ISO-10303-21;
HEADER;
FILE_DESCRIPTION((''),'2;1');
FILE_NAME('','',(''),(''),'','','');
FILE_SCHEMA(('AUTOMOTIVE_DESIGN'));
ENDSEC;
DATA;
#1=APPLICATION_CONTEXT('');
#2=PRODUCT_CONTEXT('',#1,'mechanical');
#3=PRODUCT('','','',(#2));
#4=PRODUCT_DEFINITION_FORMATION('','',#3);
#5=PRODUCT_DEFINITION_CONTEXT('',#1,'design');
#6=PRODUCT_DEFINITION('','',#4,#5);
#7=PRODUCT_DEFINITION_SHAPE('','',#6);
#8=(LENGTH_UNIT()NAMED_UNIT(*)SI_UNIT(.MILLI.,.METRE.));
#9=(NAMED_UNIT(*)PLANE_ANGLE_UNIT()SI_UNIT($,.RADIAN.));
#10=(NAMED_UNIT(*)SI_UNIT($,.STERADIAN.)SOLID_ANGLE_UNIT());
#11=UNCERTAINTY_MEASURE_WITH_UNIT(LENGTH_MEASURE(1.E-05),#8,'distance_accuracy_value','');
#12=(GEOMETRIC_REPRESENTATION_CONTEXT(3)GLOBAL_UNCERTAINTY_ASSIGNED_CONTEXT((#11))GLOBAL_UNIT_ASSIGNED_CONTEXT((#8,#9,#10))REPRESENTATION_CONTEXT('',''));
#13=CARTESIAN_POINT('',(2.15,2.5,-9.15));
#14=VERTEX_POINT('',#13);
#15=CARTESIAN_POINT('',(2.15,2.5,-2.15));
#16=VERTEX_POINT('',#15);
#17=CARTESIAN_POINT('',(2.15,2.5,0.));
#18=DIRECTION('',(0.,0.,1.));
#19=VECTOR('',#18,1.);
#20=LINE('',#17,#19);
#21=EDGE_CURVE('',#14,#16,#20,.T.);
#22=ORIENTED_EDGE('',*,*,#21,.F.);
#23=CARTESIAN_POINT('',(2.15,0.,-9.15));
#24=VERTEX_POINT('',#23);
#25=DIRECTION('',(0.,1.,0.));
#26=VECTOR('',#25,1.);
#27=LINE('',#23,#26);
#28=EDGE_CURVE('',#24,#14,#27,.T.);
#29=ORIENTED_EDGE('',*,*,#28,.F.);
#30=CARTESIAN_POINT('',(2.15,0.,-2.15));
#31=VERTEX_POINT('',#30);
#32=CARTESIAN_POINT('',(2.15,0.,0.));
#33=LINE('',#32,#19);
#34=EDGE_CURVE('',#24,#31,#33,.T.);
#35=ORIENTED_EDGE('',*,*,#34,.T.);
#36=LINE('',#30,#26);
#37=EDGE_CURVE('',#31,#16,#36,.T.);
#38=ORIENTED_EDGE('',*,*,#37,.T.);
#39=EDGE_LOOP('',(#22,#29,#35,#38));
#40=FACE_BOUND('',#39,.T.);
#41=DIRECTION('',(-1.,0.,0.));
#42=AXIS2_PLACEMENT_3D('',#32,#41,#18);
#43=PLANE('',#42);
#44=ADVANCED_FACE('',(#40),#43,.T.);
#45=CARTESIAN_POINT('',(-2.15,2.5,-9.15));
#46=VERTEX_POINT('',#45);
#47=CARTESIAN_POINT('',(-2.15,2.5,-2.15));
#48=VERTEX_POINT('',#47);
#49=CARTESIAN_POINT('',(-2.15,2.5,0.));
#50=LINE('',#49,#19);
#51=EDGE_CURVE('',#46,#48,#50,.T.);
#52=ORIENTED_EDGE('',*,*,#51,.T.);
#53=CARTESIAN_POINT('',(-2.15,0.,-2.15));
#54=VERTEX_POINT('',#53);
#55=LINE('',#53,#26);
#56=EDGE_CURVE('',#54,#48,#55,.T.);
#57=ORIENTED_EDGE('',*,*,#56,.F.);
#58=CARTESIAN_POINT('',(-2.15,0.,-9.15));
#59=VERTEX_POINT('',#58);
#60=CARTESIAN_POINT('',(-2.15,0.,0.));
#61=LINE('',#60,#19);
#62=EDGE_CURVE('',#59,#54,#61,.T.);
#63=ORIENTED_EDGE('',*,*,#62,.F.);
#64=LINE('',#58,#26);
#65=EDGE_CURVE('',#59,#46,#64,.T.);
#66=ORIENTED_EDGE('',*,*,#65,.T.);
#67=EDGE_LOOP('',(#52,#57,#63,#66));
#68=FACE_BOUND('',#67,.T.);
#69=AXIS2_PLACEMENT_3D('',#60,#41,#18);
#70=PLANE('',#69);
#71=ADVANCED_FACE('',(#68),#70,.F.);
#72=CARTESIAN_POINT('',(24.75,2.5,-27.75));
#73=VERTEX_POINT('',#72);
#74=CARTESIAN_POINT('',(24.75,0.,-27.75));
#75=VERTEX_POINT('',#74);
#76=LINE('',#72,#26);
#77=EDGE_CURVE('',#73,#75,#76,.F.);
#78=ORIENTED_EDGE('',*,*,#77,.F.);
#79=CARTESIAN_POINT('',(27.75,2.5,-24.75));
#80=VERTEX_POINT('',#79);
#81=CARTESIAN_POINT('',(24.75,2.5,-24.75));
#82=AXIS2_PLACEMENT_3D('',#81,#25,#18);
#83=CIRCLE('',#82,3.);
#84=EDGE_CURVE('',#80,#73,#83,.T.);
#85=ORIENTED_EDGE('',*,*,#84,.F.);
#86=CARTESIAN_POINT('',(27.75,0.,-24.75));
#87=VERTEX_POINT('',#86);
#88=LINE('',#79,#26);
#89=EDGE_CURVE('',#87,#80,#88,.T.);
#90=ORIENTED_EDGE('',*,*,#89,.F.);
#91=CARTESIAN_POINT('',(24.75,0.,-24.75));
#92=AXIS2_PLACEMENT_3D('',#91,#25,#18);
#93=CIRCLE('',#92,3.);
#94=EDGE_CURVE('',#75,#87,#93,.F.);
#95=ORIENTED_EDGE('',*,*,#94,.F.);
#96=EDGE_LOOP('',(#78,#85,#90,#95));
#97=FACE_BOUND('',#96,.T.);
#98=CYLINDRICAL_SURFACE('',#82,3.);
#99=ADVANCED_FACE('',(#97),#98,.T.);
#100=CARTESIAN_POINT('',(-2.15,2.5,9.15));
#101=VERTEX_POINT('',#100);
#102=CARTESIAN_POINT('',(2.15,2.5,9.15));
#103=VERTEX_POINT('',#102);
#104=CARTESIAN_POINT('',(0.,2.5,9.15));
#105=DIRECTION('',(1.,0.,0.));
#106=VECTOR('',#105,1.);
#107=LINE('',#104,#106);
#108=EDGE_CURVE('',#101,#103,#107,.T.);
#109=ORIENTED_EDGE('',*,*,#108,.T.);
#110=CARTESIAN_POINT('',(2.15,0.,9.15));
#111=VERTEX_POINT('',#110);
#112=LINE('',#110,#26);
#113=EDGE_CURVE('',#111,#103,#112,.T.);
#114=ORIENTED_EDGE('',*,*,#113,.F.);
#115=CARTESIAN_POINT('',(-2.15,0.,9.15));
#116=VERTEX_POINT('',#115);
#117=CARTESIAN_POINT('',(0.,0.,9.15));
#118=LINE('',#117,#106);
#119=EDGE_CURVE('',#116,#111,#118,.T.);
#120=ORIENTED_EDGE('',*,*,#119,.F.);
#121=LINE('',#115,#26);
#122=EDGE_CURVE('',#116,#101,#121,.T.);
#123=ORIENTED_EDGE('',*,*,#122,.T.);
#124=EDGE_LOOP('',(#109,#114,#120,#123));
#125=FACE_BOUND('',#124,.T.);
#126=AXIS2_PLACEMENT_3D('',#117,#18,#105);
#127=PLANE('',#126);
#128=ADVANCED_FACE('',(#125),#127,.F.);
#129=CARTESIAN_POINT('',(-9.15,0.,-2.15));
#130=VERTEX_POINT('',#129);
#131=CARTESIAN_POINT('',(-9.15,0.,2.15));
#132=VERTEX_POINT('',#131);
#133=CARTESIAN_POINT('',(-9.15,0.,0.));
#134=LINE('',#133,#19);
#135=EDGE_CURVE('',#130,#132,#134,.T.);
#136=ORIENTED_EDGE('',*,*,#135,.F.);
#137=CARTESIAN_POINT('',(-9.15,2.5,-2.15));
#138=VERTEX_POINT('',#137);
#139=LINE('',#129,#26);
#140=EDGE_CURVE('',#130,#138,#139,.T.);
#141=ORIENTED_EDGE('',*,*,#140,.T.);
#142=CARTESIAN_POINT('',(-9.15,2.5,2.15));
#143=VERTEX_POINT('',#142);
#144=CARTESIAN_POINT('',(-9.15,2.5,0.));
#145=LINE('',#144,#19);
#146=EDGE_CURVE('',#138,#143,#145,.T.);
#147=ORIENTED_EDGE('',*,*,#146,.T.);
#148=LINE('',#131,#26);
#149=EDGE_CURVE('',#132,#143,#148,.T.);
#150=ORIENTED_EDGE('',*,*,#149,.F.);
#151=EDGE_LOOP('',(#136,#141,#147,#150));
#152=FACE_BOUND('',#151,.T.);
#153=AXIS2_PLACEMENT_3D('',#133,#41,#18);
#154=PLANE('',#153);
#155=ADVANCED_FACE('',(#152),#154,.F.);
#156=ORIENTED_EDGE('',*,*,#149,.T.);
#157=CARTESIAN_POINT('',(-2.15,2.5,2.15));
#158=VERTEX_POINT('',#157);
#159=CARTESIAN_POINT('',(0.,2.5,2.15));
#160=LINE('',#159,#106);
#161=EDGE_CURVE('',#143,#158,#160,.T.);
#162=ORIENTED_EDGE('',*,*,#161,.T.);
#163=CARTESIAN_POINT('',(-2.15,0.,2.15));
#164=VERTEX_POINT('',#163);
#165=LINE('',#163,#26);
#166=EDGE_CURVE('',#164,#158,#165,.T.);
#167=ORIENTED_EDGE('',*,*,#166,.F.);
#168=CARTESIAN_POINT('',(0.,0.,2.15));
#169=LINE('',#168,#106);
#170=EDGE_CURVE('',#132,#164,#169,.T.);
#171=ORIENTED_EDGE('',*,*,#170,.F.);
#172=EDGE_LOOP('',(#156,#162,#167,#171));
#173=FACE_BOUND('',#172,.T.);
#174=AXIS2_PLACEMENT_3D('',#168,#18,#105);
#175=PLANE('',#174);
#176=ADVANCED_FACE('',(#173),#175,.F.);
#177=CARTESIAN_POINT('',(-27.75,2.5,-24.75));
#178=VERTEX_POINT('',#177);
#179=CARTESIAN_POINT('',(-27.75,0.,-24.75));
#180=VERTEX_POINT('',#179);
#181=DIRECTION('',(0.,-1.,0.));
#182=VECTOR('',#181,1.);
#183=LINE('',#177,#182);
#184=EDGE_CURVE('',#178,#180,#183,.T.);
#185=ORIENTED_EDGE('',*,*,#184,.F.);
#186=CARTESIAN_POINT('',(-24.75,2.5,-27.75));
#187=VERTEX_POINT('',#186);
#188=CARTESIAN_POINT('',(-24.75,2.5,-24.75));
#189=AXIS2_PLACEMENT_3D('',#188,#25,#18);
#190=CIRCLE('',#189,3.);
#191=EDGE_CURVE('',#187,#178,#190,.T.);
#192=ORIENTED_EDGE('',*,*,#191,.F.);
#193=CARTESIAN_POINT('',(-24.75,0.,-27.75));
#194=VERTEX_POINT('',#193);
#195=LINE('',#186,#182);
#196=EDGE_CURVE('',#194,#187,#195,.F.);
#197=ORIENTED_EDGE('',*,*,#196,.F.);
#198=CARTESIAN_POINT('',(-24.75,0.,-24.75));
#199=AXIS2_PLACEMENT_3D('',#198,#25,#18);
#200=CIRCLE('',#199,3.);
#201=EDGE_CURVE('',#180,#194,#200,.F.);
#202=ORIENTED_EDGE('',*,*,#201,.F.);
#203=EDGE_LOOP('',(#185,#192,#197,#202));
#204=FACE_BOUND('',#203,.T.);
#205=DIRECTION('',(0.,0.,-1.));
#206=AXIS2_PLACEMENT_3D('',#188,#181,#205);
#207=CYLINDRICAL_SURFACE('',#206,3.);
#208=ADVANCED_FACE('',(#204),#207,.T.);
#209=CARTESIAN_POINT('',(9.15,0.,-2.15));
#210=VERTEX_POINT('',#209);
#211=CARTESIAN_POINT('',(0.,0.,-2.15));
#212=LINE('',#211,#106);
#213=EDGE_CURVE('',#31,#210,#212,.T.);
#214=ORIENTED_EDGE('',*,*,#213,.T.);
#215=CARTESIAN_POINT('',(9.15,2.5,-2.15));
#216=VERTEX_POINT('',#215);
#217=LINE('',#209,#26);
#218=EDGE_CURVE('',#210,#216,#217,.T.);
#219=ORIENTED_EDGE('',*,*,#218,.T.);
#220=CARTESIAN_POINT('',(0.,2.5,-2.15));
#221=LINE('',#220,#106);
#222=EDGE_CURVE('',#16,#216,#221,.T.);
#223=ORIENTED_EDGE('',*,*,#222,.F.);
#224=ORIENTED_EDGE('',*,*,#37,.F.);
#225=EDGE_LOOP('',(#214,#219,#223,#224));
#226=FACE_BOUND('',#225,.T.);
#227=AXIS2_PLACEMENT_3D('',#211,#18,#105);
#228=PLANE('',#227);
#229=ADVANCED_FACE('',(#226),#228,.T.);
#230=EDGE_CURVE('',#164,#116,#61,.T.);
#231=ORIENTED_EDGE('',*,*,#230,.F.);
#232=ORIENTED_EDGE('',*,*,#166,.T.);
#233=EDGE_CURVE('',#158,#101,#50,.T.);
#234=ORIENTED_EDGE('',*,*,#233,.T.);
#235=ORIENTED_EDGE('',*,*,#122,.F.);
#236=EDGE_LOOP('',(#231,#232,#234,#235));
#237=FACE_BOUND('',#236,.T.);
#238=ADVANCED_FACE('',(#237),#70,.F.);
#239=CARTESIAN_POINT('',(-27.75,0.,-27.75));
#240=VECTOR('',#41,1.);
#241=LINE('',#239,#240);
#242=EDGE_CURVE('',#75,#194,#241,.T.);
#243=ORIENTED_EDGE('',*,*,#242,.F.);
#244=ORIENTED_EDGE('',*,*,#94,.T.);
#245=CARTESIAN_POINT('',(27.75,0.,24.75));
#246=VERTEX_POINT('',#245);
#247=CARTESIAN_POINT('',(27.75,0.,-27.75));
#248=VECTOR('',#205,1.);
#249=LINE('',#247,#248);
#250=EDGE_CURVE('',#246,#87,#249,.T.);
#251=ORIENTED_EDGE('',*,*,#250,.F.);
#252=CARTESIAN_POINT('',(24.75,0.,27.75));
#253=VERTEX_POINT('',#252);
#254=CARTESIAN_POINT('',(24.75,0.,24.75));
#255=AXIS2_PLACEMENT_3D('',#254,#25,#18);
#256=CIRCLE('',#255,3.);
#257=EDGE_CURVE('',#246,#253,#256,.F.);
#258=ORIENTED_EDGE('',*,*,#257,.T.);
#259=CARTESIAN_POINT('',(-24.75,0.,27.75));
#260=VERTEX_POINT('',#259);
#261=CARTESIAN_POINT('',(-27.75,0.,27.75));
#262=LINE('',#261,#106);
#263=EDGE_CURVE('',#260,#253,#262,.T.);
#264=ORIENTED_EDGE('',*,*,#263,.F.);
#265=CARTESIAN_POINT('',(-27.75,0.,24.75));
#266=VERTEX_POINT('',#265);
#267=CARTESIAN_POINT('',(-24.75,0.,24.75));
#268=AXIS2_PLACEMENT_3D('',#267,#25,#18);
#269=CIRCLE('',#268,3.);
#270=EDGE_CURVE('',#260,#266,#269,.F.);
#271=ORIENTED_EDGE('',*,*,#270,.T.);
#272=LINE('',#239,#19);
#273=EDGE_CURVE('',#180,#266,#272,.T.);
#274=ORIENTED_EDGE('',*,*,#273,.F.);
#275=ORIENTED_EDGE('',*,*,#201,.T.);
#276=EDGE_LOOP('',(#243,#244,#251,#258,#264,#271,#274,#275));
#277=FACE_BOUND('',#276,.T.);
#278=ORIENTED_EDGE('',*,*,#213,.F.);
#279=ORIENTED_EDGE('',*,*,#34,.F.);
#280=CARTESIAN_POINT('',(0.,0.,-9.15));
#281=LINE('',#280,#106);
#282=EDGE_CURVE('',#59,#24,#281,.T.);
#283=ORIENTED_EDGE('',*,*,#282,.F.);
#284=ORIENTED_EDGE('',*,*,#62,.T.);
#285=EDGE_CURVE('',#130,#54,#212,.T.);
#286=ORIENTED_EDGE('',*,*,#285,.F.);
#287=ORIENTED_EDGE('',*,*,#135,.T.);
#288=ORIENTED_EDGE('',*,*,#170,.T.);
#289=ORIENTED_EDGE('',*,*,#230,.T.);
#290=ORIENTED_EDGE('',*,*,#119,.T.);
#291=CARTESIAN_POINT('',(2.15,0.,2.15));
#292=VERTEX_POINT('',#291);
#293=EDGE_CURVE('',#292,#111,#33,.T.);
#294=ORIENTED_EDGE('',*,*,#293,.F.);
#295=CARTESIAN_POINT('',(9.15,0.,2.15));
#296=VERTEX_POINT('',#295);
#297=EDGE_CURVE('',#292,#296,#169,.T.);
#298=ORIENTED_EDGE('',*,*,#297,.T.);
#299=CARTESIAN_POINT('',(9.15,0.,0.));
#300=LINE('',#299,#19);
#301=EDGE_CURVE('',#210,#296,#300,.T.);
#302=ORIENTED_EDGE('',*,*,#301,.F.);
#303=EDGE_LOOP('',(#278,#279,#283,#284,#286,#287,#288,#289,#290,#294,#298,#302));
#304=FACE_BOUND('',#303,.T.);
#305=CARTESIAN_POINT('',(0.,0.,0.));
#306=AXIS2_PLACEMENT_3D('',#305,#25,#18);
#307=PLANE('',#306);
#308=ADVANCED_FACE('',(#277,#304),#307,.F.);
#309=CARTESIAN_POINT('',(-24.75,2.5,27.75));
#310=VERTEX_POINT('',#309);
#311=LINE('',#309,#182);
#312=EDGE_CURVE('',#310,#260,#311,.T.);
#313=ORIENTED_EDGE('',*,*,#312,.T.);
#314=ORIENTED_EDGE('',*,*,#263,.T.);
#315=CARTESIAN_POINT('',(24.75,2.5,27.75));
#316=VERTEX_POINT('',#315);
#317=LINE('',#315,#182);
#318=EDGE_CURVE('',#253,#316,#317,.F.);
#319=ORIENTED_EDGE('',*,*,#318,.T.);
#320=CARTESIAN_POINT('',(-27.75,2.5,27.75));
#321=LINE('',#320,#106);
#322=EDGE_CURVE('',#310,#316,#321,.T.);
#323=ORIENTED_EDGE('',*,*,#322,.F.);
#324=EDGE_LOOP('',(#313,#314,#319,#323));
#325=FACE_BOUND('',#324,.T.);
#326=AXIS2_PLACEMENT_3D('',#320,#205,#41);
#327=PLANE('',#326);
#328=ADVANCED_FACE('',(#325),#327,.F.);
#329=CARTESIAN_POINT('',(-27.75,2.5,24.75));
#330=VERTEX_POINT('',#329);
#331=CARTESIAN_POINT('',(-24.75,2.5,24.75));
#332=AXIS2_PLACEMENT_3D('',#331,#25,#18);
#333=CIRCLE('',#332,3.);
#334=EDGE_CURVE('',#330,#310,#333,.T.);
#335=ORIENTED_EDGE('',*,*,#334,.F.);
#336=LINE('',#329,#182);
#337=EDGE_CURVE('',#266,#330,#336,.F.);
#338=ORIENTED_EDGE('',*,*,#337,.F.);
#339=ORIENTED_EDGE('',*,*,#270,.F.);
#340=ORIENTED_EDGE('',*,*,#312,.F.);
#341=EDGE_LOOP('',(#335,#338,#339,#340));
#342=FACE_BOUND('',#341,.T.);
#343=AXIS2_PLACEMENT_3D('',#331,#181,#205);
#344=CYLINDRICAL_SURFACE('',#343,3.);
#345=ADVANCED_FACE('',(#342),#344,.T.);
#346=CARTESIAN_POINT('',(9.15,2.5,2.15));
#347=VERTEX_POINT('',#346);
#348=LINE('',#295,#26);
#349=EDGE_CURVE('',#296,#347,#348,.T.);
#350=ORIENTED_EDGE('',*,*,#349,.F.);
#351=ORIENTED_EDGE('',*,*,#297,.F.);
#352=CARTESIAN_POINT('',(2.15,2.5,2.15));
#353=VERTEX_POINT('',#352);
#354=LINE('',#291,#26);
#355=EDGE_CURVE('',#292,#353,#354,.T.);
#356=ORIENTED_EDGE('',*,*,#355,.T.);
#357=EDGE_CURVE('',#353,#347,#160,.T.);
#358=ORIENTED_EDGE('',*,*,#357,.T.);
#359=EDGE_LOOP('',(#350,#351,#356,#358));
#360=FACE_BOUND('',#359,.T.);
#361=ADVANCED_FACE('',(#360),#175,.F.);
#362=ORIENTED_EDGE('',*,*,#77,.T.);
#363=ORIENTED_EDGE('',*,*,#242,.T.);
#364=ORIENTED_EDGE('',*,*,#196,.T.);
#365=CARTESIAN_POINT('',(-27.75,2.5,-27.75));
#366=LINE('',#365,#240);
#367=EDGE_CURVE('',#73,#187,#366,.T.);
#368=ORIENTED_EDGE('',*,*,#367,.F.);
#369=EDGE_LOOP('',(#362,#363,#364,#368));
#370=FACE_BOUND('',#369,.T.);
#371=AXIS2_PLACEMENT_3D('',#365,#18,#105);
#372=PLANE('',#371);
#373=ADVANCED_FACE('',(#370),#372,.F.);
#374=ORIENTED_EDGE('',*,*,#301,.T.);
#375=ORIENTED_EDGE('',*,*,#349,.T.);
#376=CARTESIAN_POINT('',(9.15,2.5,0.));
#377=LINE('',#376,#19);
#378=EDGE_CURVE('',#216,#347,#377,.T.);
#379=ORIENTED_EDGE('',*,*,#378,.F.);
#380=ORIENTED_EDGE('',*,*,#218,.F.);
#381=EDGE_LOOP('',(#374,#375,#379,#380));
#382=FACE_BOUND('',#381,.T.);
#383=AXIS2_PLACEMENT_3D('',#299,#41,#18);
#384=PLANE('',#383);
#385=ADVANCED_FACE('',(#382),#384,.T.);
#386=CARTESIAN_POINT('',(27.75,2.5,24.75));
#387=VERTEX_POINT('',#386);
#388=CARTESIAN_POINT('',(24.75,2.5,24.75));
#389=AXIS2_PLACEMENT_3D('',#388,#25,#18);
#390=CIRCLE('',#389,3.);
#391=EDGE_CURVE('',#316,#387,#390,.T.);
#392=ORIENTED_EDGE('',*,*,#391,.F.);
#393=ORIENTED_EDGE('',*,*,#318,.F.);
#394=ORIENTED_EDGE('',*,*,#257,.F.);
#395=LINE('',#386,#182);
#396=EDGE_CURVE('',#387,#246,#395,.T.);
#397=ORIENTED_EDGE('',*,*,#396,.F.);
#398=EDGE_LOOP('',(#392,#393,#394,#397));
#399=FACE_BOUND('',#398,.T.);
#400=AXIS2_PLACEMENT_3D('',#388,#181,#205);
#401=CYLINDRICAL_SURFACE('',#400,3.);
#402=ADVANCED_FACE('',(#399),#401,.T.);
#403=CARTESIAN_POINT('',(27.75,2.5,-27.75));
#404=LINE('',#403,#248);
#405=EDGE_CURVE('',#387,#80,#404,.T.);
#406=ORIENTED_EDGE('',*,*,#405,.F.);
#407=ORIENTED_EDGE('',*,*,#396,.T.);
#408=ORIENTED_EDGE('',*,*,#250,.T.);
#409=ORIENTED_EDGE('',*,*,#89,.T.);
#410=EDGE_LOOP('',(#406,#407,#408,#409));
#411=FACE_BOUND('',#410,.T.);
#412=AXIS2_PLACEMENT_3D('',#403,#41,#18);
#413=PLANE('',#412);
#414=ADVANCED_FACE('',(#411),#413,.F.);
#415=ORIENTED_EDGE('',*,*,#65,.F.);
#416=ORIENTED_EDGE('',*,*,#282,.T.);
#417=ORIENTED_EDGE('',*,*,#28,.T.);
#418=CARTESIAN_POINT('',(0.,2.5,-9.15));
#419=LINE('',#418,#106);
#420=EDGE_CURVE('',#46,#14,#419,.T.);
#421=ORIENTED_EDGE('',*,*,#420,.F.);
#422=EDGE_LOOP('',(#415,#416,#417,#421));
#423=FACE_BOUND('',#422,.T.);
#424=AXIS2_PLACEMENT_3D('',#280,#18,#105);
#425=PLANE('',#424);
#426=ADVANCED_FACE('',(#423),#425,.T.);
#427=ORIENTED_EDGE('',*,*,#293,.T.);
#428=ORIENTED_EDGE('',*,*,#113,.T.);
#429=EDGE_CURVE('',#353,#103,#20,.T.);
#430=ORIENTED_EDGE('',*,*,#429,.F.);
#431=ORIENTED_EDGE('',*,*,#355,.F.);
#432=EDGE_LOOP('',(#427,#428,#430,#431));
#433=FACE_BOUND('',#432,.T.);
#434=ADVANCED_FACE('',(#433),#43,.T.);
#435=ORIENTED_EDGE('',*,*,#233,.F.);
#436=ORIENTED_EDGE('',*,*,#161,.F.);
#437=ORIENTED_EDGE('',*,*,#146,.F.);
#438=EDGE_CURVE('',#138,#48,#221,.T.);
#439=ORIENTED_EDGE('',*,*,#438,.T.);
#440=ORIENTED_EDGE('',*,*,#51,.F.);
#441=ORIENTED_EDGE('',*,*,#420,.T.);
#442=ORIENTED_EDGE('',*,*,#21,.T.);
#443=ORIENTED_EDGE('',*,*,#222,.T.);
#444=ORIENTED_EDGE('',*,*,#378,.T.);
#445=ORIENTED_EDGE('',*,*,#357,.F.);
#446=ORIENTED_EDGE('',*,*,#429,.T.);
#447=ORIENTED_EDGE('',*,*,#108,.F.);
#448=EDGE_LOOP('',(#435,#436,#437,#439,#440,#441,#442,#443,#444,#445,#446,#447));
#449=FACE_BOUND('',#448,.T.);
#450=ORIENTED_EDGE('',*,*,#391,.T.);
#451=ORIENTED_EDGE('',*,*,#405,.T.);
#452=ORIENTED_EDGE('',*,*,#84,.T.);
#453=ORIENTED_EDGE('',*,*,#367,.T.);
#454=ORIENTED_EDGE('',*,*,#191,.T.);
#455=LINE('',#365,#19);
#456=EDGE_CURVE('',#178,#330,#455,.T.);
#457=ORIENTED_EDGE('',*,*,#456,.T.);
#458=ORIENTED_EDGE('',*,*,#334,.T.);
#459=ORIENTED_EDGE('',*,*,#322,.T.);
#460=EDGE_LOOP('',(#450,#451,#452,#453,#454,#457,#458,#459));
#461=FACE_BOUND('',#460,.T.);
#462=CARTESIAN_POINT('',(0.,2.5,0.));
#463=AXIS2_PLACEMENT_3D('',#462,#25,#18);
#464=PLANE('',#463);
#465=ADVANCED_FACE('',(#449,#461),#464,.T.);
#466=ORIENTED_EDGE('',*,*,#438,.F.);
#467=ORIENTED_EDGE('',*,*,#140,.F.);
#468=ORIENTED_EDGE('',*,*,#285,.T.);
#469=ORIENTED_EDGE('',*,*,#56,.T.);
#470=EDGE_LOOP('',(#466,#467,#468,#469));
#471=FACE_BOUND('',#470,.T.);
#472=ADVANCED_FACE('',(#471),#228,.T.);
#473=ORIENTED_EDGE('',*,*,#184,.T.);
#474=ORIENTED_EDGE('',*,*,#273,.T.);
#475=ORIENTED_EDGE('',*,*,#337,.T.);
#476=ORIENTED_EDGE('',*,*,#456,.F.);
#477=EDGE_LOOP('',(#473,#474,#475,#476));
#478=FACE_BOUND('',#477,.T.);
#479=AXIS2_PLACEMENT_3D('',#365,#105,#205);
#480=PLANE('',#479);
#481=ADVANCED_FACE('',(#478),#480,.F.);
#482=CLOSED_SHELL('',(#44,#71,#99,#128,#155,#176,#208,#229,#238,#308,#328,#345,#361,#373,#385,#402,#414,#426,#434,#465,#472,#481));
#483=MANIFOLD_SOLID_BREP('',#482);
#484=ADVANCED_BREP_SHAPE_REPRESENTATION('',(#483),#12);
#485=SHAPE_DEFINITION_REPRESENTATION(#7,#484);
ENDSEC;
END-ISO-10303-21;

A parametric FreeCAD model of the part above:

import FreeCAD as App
import Part
import Sketcher
Q = App.Units.Quantity


def edges_at(feature, points):
    """Names of the edges that pass closest to the given points."""
    edges = feature.Shape.Edges
    near = lambda p: min(range(len(edges)), key=lambda i: edges[i].distToShape(Part.Vertex(*p))[0])
    return sorted({f"Edge{near(p) + 1}" for p in points})


def add_polygon(sketch, points):
    """Adds a closed chain of lines whose ends are joined by coincident constraints."""
    first, n = sketch.GeometryCount, len(points)
    for a, b in zip(points, points[1:] + points[:1]):
        sketch.addGeometry(Part.LineSegment(App.Vector(*a, 0), App.Vector(*b, 0)), False)
    for i in range(n):
        sketch.addConstraint(Sketcher.Constraint("Coincident", first + i, 2, first + (i + 1) % n, 1))

doc = App.newDocument("Part")
body = doc.addObject("PartDesign::Body", "Body")

# Sketch on XZ plane
sketch1 = doc.addObject("Sketcher::SketchObject", "Sketch")
body.addObject(sketch1)
sketch1.AttachmentSupport = (doc.XZ_Plane, [""])
sketch1.MapMode = "FlatFace"
add_polygon(sketch1, [(-28, -28), (-28, 28), (28, 28), (28, -28)])  # lines 0-3
sketch1.addConstraint(Sketcher.Constraint("Vertical", 0))
sketch1.addConstraint(Sketcher.Constraint("Horizontal", 1))
sketch1.addConstraint(Sketcher.Constraint("Vertical", 2))
sketch1.addConstraint(Sketcher.Constraint("Horizontal", 3))
sketch1.addConstraint(Sketcher.Constraint("Symmetric", 0, 2, 2, 2, -1, 1))
sketch1.addConstraint(Sketcher.Constraint("Equal", 3, 0))
sketch1.addConstraint(Sketcher.Constraint("DistanceX", 1, 1, 1, 2, Q("55.5 mm")))
pad1 = doc.addObject("PartDesign::Pad", "Pad")
body.addObject(pad1)
pad1.Profile = sketch1
pad1.Length = 2.5
pad1.Reversed = True
doc.recompute()

fillet = doc.addObject("PartDesign::Fillet", "Fillet")
body.addObject(fillet)
fillet.Base = (pad1, edges_at(pad1, [(27.75, 1.25, -27.75)]))
fillet.Radius = 3
doc.recompute()

fillet2 = doc.addObject("PartDesign::Fillet", "Fillet001")
body.addObject(fillet2)
fillet2.Base = (fillet, edges_at(fillet, [(-27.75, 1.25, -27.75)]))
fillet2.Radius = 3
doc.recompute()

fillet3 = doc.addObject("PartDesign::Fillet", "Fillet002")
body.addObject(fillet3)
fillet3.Base = (fillet2, edges_at(fillet2, [(-27.75, 1.25, 27.75)]))
fillet3.Radius = 3
doc.recompute()

fillet4 = doc.addObject("PartDesign::Fillet", "Fillet003")
body.addObject(fillet4)
fillet4.Base = (fillet3, edges_at(fillet3, [(27.75, 1.25, 27.75)]))
fillet4.Radius = 3

# Sketch on XZ plane
sketch2 = doc.addObject("Sketcher::SketchObject", "Sketch001")
body.addObject(sketch2)
sketch2.AttachmentSupport = (doc.XZ_Plane, [""])
sketch2.MapMode = "FlatFace"
sketch2.AttachmentOffset = App.Placement(App.Vector(0, 0, -2.5), App.Rotation())
add_polygon(sketch2, [(-2.1, -9.2), (-2.1, -2.1), (-9.2, -2.1), (-9.2, 2.1), (-2.1, 2.1), (-2.1, 9.2), (2.1, 9.2), (2.1, 2.1), (9.2, 2.1), (9.2, -2.1), (2.1, -2.1), (2.1, -9.2)])  # lines 0-11
sketch2.addConstraint(Sketcher.Constraint("Vertical", 0))
sketch2.addConstraint(Sketcher.Constraint("Horizontal", 1))
sketch2.addConstraint(Sketcher.Constraint("Vertical", 2))
sketch2.addConstraint(Sketcher.Constraint("Horizontal", 3))
sketch2.addConstraint(Sketcher.Constraint("Vertical", 4))
sketch2.addConstraint(Sketcher.Constraint("Horizontal", 5))
sketch2.addConstraint(Sketcher.Constraint("Vertical", 6))
sketch2.addConstraint(Sketcher.Constraint("Horizontal", 7))
sketch2.addConstraint(Sketcher.Constraint("Vertical", 8))
sketch2.addConstraint(Sketcher.Constraint("Horizontal", 9))
sketch2.addConstraint(Sketcher.Constraint("Vertical", 10))
sketch2.addConstraint(Sketcher.Constraint("Horizontal", 11))
sketch2.addConstraint(Sketcher.Constraint("Symmetric", 0, 2, 6, 2, -1, 1))
sketch2.addConstraint(Sketcher.Constraint("Symmetric", 2, 2, 8, 2, -1, 1))
sketch2.addConstraint(Sketcher.Constraint("Symmetric", 4, 2, 10, 2, -1, 1))
sketch2.addConstraint(Sketcher.Constraint("Symmetric", 3, 2, 6, 2, -2))
sketch2.addConstraint(Sketcher.Constraint("Equal", 9, 0))
sketch2.addConstraint(Sketcher.Constraint("Equal", 11, 2))
sketch2.addConstraint(Sketcher.Constraint("DistanceX", 1, 2, 1, 1, Q("7 mm")))
sketch2.addConstraint(Sketcher.Constraint("DistanceX", 5, 1, 5, 2, Q("4.3 mm")))
pocket1 = doc.addObject("PartDesign::Pocket", "Pocket")
body.addObject(pocket1)
pocket1.Profile = sketch2
pocket1.Type = "ThroughAll"
pocket1.Reversed = True

doc.recompute()
